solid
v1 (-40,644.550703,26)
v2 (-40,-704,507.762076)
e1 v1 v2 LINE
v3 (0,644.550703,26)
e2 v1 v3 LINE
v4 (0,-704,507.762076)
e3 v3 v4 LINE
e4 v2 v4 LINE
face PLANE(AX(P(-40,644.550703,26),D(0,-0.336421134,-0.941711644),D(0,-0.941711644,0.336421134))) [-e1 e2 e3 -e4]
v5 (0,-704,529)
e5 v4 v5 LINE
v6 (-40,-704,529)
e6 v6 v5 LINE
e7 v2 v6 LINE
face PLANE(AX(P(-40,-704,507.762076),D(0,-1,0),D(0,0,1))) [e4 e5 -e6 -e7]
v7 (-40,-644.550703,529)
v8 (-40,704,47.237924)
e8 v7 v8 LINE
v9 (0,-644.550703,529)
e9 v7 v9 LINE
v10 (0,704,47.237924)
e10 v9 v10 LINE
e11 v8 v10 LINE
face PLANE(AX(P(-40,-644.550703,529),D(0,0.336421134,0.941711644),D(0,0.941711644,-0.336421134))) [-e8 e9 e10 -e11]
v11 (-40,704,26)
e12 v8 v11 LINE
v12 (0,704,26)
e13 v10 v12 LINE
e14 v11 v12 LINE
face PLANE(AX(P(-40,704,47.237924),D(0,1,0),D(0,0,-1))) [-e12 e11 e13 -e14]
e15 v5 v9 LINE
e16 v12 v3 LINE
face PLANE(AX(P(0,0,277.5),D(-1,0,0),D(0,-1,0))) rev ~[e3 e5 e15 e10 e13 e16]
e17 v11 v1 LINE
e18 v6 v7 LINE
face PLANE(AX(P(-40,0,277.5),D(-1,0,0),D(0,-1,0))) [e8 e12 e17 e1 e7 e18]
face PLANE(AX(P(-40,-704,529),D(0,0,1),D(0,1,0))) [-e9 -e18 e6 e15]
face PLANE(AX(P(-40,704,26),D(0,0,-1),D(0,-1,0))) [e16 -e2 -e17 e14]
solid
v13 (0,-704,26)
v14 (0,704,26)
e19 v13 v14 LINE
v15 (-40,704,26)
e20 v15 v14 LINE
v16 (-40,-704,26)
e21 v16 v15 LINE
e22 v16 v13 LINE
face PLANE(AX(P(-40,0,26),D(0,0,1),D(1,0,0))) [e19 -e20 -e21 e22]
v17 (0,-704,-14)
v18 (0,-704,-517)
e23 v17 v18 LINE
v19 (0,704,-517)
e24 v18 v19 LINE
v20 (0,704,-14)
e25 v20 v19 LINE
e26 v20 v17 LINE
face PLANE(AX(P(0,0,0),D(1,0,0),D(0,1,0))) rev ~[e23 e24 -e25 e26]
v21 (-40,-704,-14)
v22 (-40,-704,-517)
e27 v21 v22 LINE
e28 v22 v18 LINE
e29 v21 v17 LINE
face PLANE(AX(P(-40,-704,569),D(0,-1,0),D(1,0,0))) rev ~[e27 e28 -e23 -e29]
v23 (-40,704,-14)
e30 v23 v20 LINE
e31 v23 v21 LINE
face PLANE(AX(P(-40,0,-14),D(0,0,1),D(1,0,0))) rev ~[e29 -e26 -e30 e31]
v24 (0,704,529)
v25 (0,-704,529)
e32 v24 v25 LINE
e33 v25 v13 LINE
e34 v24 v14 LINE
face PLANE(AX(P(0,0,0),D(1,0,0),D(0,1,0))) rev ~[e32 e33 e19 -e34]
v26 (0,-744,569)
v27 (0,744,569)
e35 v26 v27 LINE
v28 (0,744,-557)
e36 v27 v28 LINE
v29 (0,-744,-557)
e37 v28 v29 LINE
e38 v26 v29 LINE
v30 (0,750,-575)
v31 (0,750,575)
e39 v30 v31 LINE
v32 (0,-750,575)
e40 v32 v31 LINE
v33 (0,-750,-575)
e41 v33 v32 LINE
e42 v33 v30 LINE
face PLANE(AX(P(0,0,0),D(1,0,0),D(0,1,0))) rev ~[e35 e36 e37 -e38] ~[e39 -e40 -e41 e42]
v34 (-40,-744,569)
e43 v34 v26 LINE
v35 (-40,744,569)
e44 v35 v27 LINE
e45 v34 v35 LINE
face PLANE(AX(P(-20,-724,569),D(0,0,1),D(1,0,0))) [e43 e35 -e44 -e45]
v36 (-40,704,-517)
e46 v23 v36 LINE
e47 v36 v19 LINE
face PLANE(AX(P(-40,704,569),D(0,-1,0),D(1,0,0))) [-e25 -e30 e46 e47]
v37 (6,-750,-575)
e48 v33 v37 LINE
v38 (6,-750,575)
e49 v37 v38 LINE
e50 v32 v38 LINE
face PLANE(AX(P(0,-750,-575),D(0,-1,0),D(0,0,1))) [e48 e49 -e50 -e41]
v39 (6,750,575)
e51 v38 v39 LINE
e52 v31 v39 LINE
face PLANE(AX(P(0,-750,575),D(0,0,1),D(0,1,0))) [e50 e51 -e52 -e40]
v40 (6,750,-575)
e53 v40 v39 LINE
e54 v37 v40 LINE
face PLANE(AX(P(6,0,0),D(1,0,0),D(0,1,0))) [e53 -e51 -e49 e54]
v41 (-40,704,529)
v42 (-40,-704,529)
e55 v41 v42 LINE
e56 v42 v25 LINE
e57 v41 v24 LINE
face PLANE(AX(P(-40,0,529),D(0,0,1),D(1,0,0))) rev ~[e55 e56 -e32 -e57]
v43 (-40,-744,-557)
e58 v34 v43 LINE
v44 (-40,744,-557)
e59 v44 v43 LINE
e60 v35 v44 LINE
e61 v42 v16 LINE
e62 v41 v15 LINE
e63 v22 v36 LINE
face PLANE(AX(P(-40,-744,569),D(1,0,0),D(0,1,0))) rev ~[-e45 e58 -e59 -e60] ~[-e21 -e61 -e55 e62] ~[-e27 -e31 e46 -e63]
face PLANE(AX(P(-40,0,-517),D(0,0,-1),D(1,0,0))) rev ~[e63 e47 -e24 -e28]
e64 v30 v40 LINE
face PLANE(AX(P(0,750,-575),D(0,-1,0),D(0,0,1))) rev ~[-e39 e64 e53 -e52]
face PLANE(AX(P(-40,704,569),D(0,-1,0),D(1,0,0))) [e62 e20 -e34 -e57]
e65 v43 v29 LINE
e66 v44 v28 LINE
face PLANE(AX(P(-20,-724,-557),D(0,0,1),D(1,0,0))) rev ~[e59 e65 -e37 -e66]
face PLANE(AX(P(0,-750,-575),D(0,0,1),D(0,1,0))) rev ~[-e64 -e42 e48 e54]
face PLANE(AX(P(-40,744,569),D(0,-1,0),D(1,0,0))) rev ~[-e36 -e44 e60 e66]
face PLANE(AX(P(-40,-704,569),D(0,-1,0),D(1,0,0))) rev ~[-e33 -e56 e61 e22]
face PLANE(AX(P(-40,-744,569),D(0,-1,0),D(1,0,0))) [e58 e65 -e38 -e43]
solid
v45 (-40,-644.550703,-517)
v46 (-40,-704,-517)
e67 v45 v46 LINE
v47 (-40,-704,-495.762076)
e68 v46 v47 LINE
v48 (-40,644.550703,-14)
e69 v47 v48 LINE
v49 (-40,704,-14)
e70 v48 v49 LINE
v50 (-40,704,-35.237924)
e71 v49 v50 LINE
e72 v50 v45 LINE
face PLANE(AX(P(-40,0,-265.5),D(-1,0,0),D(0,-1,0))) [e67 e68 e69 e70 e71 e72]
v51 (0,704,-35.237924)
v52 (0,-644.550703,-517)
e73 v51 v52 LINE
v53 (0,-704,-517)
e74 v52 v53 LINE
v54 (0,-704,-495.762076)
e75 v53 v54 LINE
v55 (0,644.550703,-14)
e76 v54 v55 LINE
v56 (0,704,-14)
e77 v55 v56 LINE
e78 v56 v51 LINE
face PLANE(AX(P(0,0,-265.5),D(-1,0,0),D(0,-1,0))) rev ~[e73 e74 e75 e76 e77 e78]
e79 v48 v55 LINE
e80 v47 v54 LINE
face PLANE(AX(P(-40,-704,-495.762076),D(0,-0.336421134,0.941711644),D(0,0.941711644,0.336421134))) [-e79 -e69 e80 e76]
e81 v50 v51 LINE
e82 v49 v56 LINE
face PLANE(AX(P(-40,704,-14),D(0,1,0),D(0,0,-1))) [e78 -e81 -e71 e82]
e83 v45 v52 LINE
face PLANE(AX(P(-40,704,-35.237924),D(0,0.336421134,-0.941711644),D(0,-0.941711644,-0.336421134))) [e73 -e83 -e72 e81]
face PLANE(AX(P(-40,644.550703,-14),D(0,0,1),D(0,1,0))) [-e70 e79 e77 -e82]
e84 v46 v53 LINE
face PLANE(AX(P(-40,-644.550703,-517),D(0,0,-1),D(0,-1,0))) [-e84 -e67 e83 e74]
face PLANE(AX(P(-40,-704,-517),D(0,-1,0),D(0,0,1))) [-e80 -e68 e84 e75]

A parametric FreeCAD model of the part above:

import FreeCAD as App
import Part
import Sketcher
from FreeCAD import Vector
Q = App.Units.Quantity

doc = App.newDocument("Part")
body = doc.addObject("PartDesign::Body", "Body")

# Sketch on YZ plane
sketch1 = doc.addObject("Sketcher::SketchObject", "Sketch")
body.addObject(sketch1)
sketch1.AttachmentSupport = (doc.YZ_Plane, [""])
sketch1.MapMode = "FlatFace"
sketch1.addGeometry([
    Part.LineSegment(Vector(-750, 575, 0), Vector(-750, -575, 0)),
    Part.LineSegment(Vector(-750, -575, 0), Vector(750, -575, 0)),
    Part.LineSegment(Vector(750, -575, 0), Vector(750, 575, 0)),
    Part.LineSegment(Vector(750, 575, 0), Vector(-750, 575, 0)),
], False)
sketch1.addConstraint([
    Sketcher.Constraint("Coincident", 0, 2, 1, 1),
    Sketcher.Constraint("Coincident", 1, 2, 2, 1),
    Sketcher.Constraint("Coincident", 2, 2, 3, 1),
    Sketcher.Constraint("Coincident", 3, 2, 0, 1),
    Sketcher.Constraint("Vertical", 0),
    Sketcher.Constraint("Horizontal", 1),
    Sketcher.Constraint("Vertical", 2),
    Sketcher.Constraint("Horizontal", 3),
    Sketcher.Constraint("Symmetric", 0, 2, 2, 2, -1, 1),
    Sketcher.Constraint("DistanceX", 1, 1, 1, 2, Q("1500 mm")),
    Sketcher.Constraint("DistanceY", 0, 2, 0, 1, Q("1150 mm")),
])
pad1 = doc.addObject("PartDesign::Pad", "Pad")
body.addObject(pad1)
pad1.Profile = sketch1
pad1.Length = 6

# Sketch on XZ plane
sketch2 = doc.addObject("Sketcher::SketchObject", "Sketch001")
body.addObject(sketch2)
sketch2.AttachmentSupport = (doc.XZ_Plane, [""])
sketch2.MapMode = "FlatFace"
sketch2.addGeometry([
    Part.LineSegment(Vector(-40, 569, 0), Vector(-40, 529, 0)),  # 0
    Part.LineSegment(Vector(-40, 529, 0), Vector(0, 529, 0)),  # 1
    Part.LineSegment(Vector(0, 529, 0), Vector(0, 569, 0)),  # 2
    Part.LineSegment(Vector(0, 569, 0), Vector(-40, 569, 0)),  # 3
    Part.LineSegment(Vector(-40, 26, 0), Vector(-40, -14, 0)),  # 4
    Part.LineSegment(Vector(-40, -14, 0), Vector(0, -14, 0)),  # 5
    Part.LineSegment(Vector(0, -14, 0), Vector(0, 26, 0)),  # 6
    Part.LineSegment(Vector(0, 26, 0), Vector(-40, 26, 0)),  # 7
    Part.LineSegment(Vector(-40, -517, 0), Vector(-40, -557, 0)),  # 8
    Part.LineSegment(Vector(-40, -557, 0), Vector(0, -557, 0)),  # 9
    Part.LineSegment(Vector(0, -557, 0), Vector(0, -517, 0)),  # 10
    Part.LineSegment(Vector(0, -517, 0), Vector(-40, -517, 0)),  # 11
], False)
sketch2.addConstraint([
    Sketcher.Constraint("Coincident", 0, 2, 1, 1),
    Sketcher.Constraint("Coincident", 1, 2, 2, 1),
    Sketcher.Constraint("Coincident", 2, 2, 3, 1),
    Sketcher.Constraint("Coincident", 3, 2, 0, 1),
    Sketcher.Constraint("Coincident", 4, 2, 5, 1),
    Sketcher.Constraint("Coincident", 5, 2, 6, 1),
    Sketcher.Constraint("Coincident", 6, 2, 7, 1),
    Sketcher.Constraint("Coincident", 7, 2, 4, 1),
    Sketcher.Constraint("Coincident", 8, 2, 9, 1),
    Sketcher.Constraint("Coincident", 9, 2, 10, 1),
    Sketcher.Constraint("Coincident", 10, 2, 11, 1),
    Sketcher.Constraint("Coincident", 11, 2, 8, 1),
    Sketcher.Constraint("Vertical", 0),
    Sketcher.Constraint("Horizontal", 1),
    Sketcher.Constraint("Vertical", 2),
    Sketcher.Constraint("Horizontal", 3),
    Sketcher.Constraint("Vertical", 4),
    Sketcher.Constraint("Horizontal", 5),
    Sketcher.Constraint("Vertical", 6),
    Sketcher.Constraint("Horizontal", 7),
    Sketcher.Constraint("Vertical", 8),
    Sketcher.Constraint("Horizontal", 9),
    Sketcher.Constraint("Vertical", 10),
    Sketcher.Constraint("Horizontal", 11),
    Sketcher.Constraint("PointOnObject", 1, 2, -2),
    Sketcher.Constraint("PointOnObject", 5, 2, -2),
    Sketcher.Constraint("PointOnObject", 9, 2, -2),
    Sketcher.Constraint("Vertical", 3, 2, 4, 2),
    Sketcher.Constraint("Vertical", 7, 2, 8, 2),
    Sketcher.Constraint("Equal", 11, 0),
    Sketcher.Constraint("Equal", 2, 4),
    Sketcher.Constraint("Equal", 6, 8),
    Sketcher.Constraint("DistanceX", 1, 1, 1, 2, Q("40 mm")),
    Sketcher.Constraint("DistanceY", -1, 1, 0, 2, Q("529 mm")),
    Sketcher.Constraint("DistanceY", 4, 2, -1, 1, Q("14 mm")),
    Sketcher.Constraint("DistanceY", 8, 2, -1, 1, Q("557 mm")),
])
pad2 = doc.addObject("PartDesign::Pad", "Pad001")
body.addObject(pad2)
pad2.Profile = sketch2
pad2.Length = 1408
pad2.Midplane = True

# Sketch on XY plane
sketch3 = doc.addObject("Sketcher::SketchObject", "Sketch002")
body.addObject(sketch3)
sketch3.AttachmentSupport = (doc.XY_Plane, [""])
sketch3.MapMode = "FlatFace"
sketch3.AttachmentOffset = App.Placement(Vector(0, 0, 569), App.Rotation())
sketch3.addGeometry([
    Part.LineSegment(Vector(-40, -704, 0), Vector(-40, -744, 0)),  # 0
    Part.LineSegment(Vector(-40, -744, 0), Vector(0, -744, 0)),  # 1
    Part.LineSegment(Vector(0, -744, 0), Vector(0, -704, 0)),  # 2
    Part.LineSegment(Vector(0, -704, 0), Vector(-40, -704, 0)),  # 3
    Part.LineSegment(Vector(-40, 744, 0), Vector(-40, 704, 0)),  # 4
    Part.LineSegment(Vector(-40, 704, 0), Vector(0, 704, 0)),  # 5
    Part.LineSegment(Vector(0, 704, 0), Vector(0, 744, 0)),  # 6
    Part.LineSegment(Vector(0, 744, 0), Vector(-40, 744, 0)),  # 7
], False)
sketch3.addConstraint([
    Sketcher.Constraint("Coincident", 0, 2, 1, 1),
    Sketcher.Constraint("Coincident", 1, 2, 2, 1),
    Sketcher.Constraint("Coincident", 2, 2, 3, 1),
    Sketcher.Constraint("Coincident", 3, 2, 0, 1),
    Sketcher.Constraint("Coincident", 4, 2, 5, 1),
    Sketcher.Constraint("Coincident", 5, 2, 6, 1),
    Sketcher.Constraint("Coincident", 6, 2, 7, 1),
    Sketcher.Constraint("Coincident", 7, 2, 4, 1),
    Sketcher.Constraint("Vertical", 0),
    Sketcher.Constraint("Horizontal", 1),
    Sketcher.Constraint("Vertical", 2),
    Sketcher.Constraint("Horizontal", 3),
    Sketcher.Constraint("Vertical", 4),
    Sketcher.Constraint("Horizontal", 5),
    Sketcher.Constraint("Vertical", 6),
    Sketcher.Constraint("Horizontal", 7),
    Sketcher.Constraint("Symmetric", 2, 2, 5, 2, -1, 1),
    Sketcher.Constraint("Symmetric", 1, 2, 6, 2, -1),
    Sketcher.Constraint("Vertical", 3, 2, 4, 2),
    Sketcher.Constraint("Equal", 7, 0),
    Sketcher.Constraint("DistanceX", 1, 1, 1, 2, Q("40 mm")),
    Sketcher.Constraint("DistanceY", 0, 2, -1, 1, Q("744 mm")),
])
pad3 = doc.addObject("PartDesign::Pad", "Pad002")
body.addObject(pad3)
pad3.Profile = sketch3
pad3.Length = 1126
pad3.Reversed = True
body2 = doc.addObject("PartDesign::Body", "Body001")
body2.AllowCompound = True

# Sketch on YZ plane
sketch4 = doc.addObject("Sketcher::SketchObject", "Sketch003")
body2.addObject(sketch4)
sketch4.AttachmentSupport = (doc.getObject("YZ_Plane001"), [""])
sketch4.MapMode = "FlatFace"
sketch4.AttachmentOffset = App.Placement(Vector(0, 0, -40), App.Rotation())
sketch4.addGeometry([
    Part.LineSegment(Vector(-704, 529, 0), Vector(-644.550703, 529, 0)),  # 0
    Part.LineSegment(Vector(-644.550703, 529, 0), Vector(704, 47.237924, 0)),  # 1
    Part.LineSegment(Vector(704, 47.237924, 0), Vector(704, 26, 0)),  # 2
    Part.LineSegment(Vector(704, 26, 0), Vector(644.550703, 26, 0)),  # 3
    Part.LineSegment(Vector(644.550703, 26, 0), Vector(-704, 507.762076, 0)),  # 4
    Part.LineSegment(Vector(-704, 507.762076, 0), Vector(-704, 529, 0)),  # 5
    Part.LineSegment(Vector(704, -14, 0), Vector(704, -35.237924, 0)),  # 6
    Part.LineSegment(Vector(704, -35.237924, 0), Vector(-644.550703, -517, 0)),  # 7
    Part.LineSegment(Vector(-644.550703, -517, 0), Vector(-704, -517, 0)),  # 8
    Part.LineSegment(Vector(-704, -517, 0), Vector(-704, -495.762076, 0)),  # 9
    Part.LineSegment(Vector(-704, -495.762076, 0), Vector(644.550703, -14, 0)),  # 10
    Part.LineSegment(Vector(644.550703, -14, 0), Vector(704, -14, 0)),  # 11
], False)
sketch4.addConstraint([
    Sketcher.Constraint("Coincident", 0, 2, 1, 1),
    Sketcher.Constraint("Coincident", 1, 2, 2, 1),
    Sketcher.Constraint("Coincident", 2, 2, 3, 1),
    Sketcher.Constraint("Coincident", 3, 2, 4, 1),
    Sketcher.Constraint("Coincident", 4, 2, 5, 1),
    Sketcher.Constraint("Coincident", 5, 2, 0, 1),
    Sketcher.Constraint("Coincident", 6, 2, 7, 1),
    Sketcher.Constraint("Coincident", 7, 2, 8, 1),
    Sketcher.Constraint("Coincident", 8, 2, 9, 1),
    Sketcher.Constraint("Coincident", 9, 2, 10, 1),
    Sketcher.Constraint("Coincident", 10, 2, 11, 1),
    Sketcher.Constraint("Coincident", 11, 2, 6, 1),
    Sketcher.Constraint("Horizontal", 0),
    Sketcher.Constraint("Vertical", 2),
    Sketcher.Constraint("Horizontal", 3),
    Sketcher.Constraint("Vertical", 5),
    Sketcher.Constraint("Vertical", 6),
    Sketcher.Constraint("Horizontal", 8),
    Sketcher.Constraint("Vertical", 9),
    Sketcher.Constraint("Horizontal", 11),
    Sketcher.Constraint("Parallel", 1, 4),
    Sketcher.Constraint("Parallel", 7, 10),
    Sketcher.Constraint("Vertical", 2, 2, 6, 2),
    Sketcher.Constraint("Vertical", 0, 2, 7, 2),
    Sketcher.Constraint("Vertical", 5, 2, 8, 2),
    Sketcher.Constraint("Vertical", 3, 2, 10, 2),
    Sketcher.Constraint("Equal", 0, 3),
    Sketcher.Constraint("Equal", 5, 6),
    Sketcher.Constraint("Equal", 4, 7),
    Sketcher.Constraint("DistanceY", -1, 1, 0, 2, Q("529 mm")),
    Sketcher.Constraint("DistanceX", -1, 1, 1, 2, Q("704 mm")),
    Sketcher.Constraint("DistanceY", -1, 1, 2, 2, Q("26 mm")),
    Sketcher.Constraint("DistanceX", 4, 2, -1, 1, Q("704 mm")),
    Sketcher.Constraint("DistanceY", 7, 2, -1, 1, Q("517 mm")),
    Sketcher.Constraint("DistanceX", 0, 1, 0, 2, Q("59.449297 mm")),
    Sketcher.Constraint("DistanceY", 2, 2, 2, 1, Q("21.237924 mm")),
])
pad4 = doc.addObject("PartDesign::Pad", "Pad003")
body2.addObject(pad4)
pad4.Profile = sketch4
pad4.Length = 40

doc.recompute()
